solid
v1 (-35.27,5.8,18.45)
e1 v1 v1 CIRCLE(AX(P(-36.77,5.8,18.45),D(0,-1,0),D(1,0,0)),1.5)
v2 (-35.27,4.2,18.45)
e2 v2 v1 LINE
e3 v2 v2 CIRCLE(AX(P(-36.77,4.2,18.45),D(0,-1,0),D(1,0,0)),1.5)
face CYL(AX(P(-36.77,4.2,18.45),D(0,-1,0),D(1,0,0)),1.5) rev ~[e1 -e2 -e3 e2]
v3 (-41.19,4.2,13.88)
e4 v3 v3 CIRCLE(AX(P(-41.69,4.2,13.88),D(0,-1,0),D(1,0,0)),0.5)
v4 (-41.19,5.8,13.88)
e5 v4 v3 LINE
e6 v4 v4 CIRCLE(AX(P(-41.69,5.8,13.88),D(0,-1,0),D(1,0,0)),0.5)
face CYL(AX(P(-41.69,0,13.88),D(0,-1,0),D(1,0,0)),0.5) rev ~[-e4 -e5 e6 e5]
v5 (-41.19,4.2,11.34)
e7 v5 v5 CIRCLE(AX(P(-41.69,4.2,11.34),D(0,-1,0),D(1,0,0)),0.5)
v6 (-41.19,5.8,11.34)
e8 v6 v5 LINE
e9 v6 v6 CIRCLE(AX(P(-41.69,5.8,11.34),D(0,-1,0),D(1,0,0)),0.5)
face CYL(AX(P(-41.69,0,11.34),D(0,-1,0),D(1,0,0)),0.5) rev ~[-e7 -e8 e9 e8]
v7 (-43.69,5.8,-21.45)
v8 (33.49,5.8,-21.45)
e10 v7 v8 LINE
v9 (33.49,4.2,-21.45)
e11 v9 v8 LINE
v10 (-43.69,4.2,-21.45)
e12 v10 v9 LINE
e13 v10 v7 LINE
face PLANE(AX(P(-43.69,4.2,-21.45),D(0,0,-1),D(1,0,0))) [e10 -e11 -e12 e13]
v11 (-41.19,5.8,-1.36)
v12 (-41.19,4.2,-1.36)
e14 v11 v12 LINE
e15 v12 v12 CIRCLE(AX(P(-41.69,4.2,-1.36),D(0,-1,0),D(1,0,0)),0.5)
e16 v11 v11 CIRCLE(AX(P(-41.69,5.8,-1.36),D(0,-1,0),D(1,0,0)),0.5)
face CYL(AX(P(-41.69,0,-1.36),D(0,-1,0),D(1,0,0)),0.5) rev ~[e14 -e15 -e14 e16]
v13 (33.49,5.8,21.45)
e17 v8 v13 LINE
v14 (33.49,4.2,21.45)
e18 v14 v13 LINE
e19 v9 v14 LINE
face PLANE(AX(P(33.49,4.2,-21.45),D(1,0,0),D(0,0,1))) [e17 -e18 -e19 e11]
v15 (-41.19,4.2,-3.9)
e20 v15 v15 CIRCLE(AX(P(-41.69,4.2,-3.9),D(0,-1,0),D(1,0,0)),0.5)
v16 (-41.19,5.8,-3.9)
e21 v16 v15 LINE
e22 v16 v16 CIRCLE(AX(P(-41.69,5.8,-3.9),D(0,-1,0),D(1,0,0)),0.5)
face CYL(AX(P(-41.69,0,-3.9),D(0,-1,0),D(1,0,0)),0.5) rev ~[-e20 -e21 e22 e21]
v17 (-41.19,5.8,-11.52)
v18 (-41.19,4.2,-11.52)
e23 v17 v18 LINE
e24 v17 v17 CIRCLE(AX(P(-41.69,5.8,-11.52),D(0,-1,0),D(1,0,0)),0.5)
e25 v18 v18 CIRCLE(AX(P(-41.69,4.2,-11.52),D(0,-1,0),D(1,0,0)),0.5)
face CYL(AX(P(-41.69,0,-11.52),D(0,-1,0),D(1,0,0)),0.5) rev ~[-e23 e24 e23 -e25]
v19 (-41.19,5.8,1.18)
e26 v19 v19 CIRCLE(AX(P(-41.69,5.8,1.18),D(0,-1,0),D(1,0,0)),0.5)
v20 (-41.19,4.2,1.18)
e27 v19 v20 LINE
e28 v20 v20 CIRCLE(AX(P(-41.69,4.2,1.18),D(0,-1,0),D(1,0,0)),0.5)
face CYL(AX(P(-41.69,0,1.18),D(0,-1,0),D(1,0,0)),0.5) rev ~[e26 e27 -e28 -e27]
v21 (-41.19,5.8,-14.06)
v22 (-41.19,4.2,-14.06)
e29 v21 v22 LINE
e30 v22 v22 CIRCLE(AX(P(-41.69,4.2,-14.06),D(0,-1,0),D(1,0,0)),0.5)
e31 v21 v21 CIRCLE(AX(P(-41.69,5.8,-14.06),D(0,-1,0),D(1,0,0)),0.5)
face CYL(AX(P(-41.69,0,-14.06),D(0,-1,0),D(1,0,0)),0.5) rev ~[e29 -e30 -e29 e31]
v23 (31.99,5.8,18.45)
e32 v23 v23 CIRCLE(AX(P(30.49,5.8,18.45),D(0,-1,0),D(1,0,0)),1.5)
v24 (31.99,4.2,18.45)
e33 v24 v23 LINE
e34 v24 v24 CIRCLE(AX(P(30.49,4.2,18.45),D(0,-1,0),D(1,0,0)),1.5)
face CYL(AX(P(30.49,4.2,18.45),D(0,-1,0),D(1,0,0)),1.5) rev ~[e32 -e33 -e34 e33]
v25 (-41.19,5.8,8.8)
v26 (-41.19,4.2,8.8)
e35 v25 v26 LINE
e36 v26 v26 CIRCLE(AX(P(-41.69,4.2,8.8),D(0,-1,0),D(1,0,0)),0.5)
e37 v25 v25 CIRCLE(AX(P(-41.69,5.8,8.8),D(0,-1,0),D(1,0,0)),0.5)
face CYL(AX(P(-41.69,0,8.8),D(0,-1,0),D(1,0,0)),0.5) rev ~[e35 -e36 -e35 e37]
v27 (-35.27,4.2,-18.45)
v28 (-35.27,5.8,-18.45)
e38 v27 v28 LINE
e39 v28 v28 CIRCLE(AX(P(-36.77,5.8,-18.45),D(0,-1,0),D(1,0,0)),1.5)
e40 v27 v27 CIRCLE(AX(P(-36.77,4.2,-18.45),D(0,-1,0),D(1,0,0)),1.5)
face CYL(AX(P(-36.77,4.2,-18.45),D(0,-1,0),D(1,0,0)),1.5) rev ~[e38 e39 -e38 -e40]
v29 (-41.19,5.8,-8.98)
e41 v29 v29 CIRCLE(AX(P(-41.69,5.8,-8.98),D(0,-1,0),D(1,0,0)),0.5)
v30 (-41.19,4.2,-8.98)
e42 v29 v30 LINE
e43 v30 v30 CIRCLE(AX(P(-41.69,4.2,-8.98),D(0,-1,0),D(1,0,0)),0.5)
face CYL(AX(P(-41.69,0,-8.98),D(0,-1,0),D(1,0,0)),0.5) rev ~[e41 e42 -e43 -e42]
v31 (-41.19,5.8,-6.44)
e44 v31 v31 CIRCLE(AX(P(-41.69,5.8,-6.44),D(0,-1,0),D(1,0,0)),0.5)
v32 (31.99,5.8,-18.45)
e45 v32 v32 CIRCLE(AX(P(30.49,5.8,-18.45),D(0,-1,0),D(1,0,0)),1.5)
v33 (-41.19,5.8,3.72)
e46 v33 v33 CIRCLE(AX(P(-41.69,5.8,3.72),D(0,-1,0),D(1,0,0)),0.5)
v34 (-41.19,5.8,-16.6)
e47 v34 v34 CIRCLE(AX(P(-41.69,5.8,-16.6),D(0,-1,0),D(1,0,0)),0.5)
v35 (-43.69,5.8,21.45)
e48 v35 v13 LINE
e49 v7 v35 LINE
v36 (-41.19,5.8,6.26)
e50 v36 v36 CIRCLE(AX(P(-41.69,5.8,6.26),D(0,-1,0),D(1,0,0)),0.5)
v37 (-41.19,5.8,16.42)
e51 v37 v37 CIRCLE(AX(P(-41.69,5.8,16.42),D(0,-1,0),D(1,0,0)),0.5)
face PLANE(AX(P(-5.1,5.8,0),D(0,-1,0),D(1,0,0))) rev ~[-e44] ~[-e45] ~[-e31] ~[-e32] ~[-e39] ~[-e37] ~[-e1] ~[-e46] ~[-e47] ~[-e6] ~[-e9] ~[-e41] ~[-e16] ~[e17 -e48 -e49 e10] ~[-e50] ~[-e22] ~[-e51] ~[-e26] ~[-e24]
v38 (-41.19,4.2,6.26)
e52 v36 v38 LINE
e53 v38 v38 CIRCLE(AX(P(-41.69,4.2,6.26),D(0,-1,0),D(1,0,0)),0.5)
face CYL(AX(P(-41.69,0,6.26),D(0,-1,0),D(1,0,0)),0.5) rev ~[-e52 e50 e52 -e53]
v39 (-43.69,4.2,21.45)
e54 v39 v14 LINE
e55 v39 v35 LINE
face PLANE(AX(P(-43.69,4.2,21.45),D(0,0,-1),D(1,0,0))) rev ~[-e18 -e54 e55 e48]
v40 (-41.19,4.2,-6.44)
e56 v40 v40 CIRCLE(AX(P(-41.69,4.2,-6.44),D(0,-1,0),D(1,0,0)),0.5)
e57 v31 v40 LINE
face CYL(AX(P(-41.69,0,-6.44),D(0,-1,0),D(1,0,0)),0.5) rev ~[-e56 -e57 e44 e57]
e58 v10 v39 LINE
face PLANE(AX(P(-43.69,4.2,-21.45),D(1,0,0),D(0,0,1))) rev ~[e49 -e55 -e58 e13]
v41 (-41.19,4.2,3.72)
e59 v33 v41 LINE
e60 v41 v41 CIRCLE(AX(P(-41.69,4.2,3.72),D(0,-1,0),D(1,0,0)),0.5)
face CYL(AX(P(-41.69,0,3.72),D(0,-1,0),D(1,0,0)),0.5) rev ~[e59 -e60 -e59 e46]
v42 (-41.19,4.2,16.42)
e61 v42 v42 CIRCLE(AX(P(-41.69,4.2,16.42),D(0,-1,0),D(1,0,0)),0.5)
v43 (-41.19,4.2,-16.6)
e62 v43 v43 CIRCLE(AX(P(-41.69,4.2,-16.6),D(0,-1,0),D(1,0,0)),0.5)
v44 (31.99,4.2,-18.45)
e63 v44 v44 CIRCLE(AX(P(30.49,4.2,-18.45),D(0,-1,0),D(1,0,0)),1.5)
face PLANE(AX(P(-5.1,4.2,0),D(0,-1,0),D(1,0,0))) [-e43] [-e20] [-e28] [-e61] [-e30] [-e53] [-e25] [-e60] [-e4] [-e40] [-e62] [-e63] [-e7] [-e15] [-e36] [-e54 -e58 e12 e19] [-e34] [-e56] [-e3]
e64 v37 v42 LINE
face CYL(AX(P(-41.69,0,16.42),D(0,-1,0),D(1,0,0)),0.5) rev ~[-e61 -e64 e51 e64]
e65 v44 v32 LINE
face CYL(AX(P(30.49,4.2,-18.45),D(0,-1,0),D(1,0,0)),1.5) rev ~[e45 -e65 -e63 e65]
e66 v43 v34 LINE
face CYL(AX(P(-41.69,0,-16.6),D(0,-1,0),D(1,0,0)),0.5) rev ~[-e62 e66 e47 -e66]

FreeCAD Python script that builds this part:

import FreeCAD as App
import Part
import Sketcher
from FreeCAD import Vector


def add_polygon(sketch, points):
    """Adds a closed chain of lines whose ends are joined by coincident constraints."""
    first, n = sketch.GeometryCount, len(points)
    for a, b in zip(points, points[1:] + points[:1]):
        sketch.addGeometry(Part.LineSegment(App.Vector(*a, 0), App.Vector(*b, 0)), False)
    for i in range(n):
        sketch.addConstraint(Sketcher.Constraint("Coincident", first + i, 2, first + (i + 1) % n, 1))

doc = App.newDocument("Part")
body = doc.addObject("PartDesign::Body", "Body")

# Sketch on XZ plane
sketch1 = body.newObject("Sketcher::SketchObject", "Sketch")
sketch1.AttachmentSupport = (doc.getObject("XZ_Plane"), [""])
sketch1.MapMode = "FlatFace"
sketch1.AttachmentOffset = App.Placement(Vector(0, 0, -4.2), App.Rotation())
add_polygon(sketch1, [(-43.69, 21.45), (-43.69, -21.45), (33.49, -21.45), (33.49, 21.45)])  # lines 0-3
sketch1.addGeometry(Part.Circle(Vector(-36.77, -18.45, 0), Vector(0, 0, 1), 1.5), False)  # 4
sketch1.addGeometry(Part.Circle(Vector(30.49, -18.45, 0), Vector(0, 0, 1), 1.5), False)  # 5
sketch1.addGeometry(Part.Circle(Vector(-36.77, 18.45, 0), Vector(0, 0, 1), 1.5), False)  # 6
sketch1.addGeometry(Part.Circle(Vector(30.49, 18.45, 0), Vector(0, 0, 1), 1.5), False)  # 7
sketch1.addConstraint(Sketcher.Constraint("Vertical", 0))
sketch1.addConstraint(Sketcher.Constraint("Horizontal", 1))
sketch1.addConstraint(Sketcher.Constraint("Vertical", 2))
sketch1.addConstraint(Sketcher.Constraint("Horizontal", 3))
sketch1.addConstraint(Sketcher.Constraint("Equal", 4, 5))
sketch1.addConstraint(Sketcher.Constraint("Equal", 5, 6))
sketch1.addConstraint(Sketcher.Constraint("Equal", 6, 7))
sketch1.addConstraint(Sketcher.Constraint("Symmetric", 4, 3, 6, 3, -1))
sketch1.addConstraint(Sketcher.Constraint("Symmetric", 5, 3, 7, 3, -1))
sketch1.addConstraint(Sketcher.Constraint("Horizontal", 4, 3, 5, 3))
sketch1.addConstraint(Sketcher.Constraint("Diameter", 4, 3.0))
sketch1.addConstraint(Sketcher.Constraint("DistanceY", 0, 2, 0, 1, 42.9))
sketch1.addConstraint(Sketcher.Constraint("DistanceY", 0, 2, 4, 3, 3.0))
sketch1.addConstraint(Sketcher.Constraint("DistanceX", 5, 3, 1, 2, 3.0))
sketch1.addConstraint(Sketcher.Constraint("DistanceY", 7, 3, 2, 2, 3.0))
sketch1.addConstraint(Sketcher.Constraint("DistanceX", 1, 1, 1, 2, 77.18))
sketch1.addConstraint(Sketcher.Constraint("DistanceX", 4, 3, -1, 1, 36.77))
sketch1.addConstraint(Sketcher.Constraint("DistanceX", -1, 1, 5, 3, 30.49))
pad1 = body.newObject("PartDesign::Pad", "Pad")
pad1.Profile = sketch1
pad1.Length = 1.6
pad1.Reversed = True

# Sketch on XZ plane
sketch2 = body.newObject("Sketcher::SketchObject", "Sketch001")
sketch2.AttachmentSupport = (doc.getObject("XZ_Plane"), [""])
sketch2.MapMode = "FlatFace"
sketch2.addGeometry(Part.Circle(Vector(-41.69, -16.6, 0), Vector(0, 0, 1), 0.5), False)
sketch2.addConstraint(Sketcher.Constraint("Diameter", 0, 1.0))
sketch2.addConstraint(Sketcher.Constraint("DistanceY", 0, 3, -1, 1, 16.6))
sketch2.addConstraint(Sketcher.Constraint("DistanceX", 0, 3, -1, 1, 41.69))
pocket1 = body.newObject("PartDesign::Pocket", "Pocket")
pocket1.Profile = sketch2
pocket1.Type = "ThroughAll"
pocket1.Midplane = True
doc.recompute()

linearpattern = body.newObject("PartDesign::LinearPattern", "LinearPattern")
linearpattern.Originals = [pocket1]
linearpattern.Direction = (doc.getObject("Z_Axis"), [""])
linearpattern.Mode = "offset"
linearpattern.Offset = 2.54
linearpattern.Occurrences = 14
body.Tip = linearpattern

doc.recompute()
